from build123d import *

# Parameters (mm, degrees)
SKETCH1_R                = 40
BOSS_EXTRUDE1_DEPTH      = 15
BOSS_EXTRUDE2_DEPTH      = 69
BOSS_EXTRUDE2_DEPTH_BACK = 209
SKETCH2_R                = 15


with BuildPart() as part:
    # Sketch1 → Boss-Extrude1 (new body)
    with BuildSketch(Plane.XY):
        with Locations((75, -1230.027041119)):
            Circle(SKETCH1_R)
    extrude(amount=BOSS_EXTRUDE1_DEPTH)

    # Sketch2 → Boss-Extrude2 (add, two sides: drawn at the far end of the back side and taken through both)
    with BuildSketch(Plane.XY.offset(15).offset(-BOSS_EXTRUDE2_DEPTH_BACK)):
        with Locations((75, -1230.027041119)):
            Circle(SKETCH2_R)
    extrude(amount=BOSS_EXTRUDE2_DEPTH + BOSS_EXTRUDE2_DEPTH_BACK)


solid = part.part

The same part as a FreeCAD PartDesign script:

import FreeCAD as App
import Part
import Sketcher
from FreeCAD import Vector

doc = App.newDocument("Part")
params = doc.addObject("Spreadsheet::Sheet", "Params")
for row, (alias, value) in enumerate([
    ("sketch1_diameter", "80 mm"),
    ("pad1_length", "15 mm"),
    ("sketch2_diameter", "30 mm"),
    ("pad2_length", "69 mm"),
    ("pad2_length2", "209 mm"),
], start=1):
    params.set(f"A{row}", alias)
    params.set(f"B{row}", "=" + value)
    params.setAlias(f"B{row}", alias)

body = doc.addObject("PartDesign::Body", "Body")

sketch1 = body.newObject("Sketcher::SketchObject", "Sketch")
sketch1.AttachmentSupport = (doc.getObject("XY_Plane"), [""])
sketch1.MapMode = "FlatFace"
sketch1.addGeometry(Part.Circle(Vector(75, -1230, 0), Vector(0, 0, 1), 40), False)
sketch1.addConstraint([
    Sketcher.Constraint("Diameter", 0, 80.0),
    Sketcher.Constraint("DistanceX", -1, 1, 0, 3, 75.0),
    Sketcher.Constraint("DistanceY", 0, 3, -1, 1, 1230.027041),
])
sketch1.setExpression("Constraints[0]", "Params.sketch1_diameter")
pad1 = body.newObject("PartDesign::Pad", "Pad")
pad1.Profile = sketch1
pad1.setExpression("Length", "Params.pad1_length")

sketch2 = body.newObject("Sketcher::SketchObject", "Sketch001")
sketch2.AttachmentSupport = (doc.getObject("XY_Plane"), [""])
sketch2.MapMode = "FlatFace"
sketch2.AttachmentOffset = App.Placement(Vector(0, 0, 15), App.Rotation())
sketch2.addGeometry(Part.Circle(Vector(75, -1230, 0), Vector(0, 0, 1), 15), False)
sketch2.addConstraint([
    Sketcher.Constraint("Diameter", 0, 30.0),
    Sketcher.Constraint("DistanceX", -1, 1, 0, 3, 75.0),
    Sketcher.Constraint("DistanceY", 0, 3, -1, 1, 1230.027041),
])
sketch2.setExpression("Constraints[0]", "Params.sketch2_diameter")
pad2 = body.newObject("PartDesign::Pad", "Pad001")
pad2.Profile = sketch2
pad2.Type = "TwoLengths"
pad2.setExpression("Length", "Params.pad2_length")
pad2.setExpression("Length2", "Params.pad2_length2")

doc.recompute()
